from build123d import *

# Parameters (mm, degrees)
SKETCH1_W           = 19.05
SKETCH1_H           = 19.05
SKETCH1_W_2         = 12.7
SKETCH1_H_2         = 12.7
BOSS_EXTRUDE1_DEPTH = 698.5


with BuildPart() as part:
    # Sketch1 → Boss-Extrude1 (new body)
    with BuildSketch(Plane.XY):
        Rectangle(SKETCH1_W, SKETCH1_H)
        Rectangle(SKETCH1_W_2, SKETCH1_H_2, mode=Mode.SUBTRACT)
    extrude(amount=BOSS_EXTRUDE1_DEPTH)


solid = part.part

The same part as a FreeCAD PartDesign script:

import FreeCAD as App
import Part
import Sketcher
Q = App.Units.Quantity


def add_polygon(sketch, points):
    """Adds a closed chain of lines whose ends are joined by coincident constraints."""
    first, n = sketch.GeometryCount, len(points)
    for a, b in zip(points, points[1:] + points[:1]):
        sketch.addGeometry(Part.LineSegment(App.Vector(*a, 0), App.Vector(*b, 0)), False)
    for i in range(n):
        sketch.addConstraint(Sketcher.Constraint("Coincident", first + i, 2, first + (i + 1) % n, 1))

doc = App.newDocument("Part")
body = doc.addObject("PartDesign::Body", "Body")

# Sketch on XY plane
sketch1 = body.newObject("Sketcher::SketchObject", "Sketch")
sketch1.AttachmentSupport = (doc.getObject("XY_Plane"), [""])
sketch1.MapMode = "FlatFace"
add_polygon(sketch1, [(-9.525, 9.525), (-9.525, -9.525), (9.525, -9.525), (9.525, 9.525)])  # lines 0-3
add_polygon(sketch1, [(6.35, -6.35), (-6.35, -6.35), (-6.35, 6.35), (6.35, 6.35)])  # lines 4-7
sketch1.addConstraint([
    Sketcher.Constraint("Vertical", 0),
    Sketcher.Constraint("Horizontal", 1),
    Sketcher.Constraint("Vertical", 2),
    Sketcher.Constraint("Horizontal", 3),
    Sketcher.Constraint("Horizontal", 4),
    Sketcher.Constraint("Vertical", 5),
    Sketcher.Constraint("Horizontal", 6),
    Sketcher.Constraint("Vertical", 7),
    Sketcher.Constraint("Symmetric", 0, 2, 2, 2, -1, 1),
    Sketcher.Constraint("Symmetric", 4, 2, 6, 2, -1, 1),
    Sketcher.Constraint("Equal", 3, 0),
    Sketcher.Constraint("Equal", 6, 5),
    Sketcher.Constraint("DistanceX", 4, 2, 4, 1, Q("0.5 in")),
    Sketcher.Constraint("DistanceX", 1, 1, 1, 2, Q("0.75 in")),
])
pad1 = body.newObject("PartDesign::Pad", "Pad")
pad1.Profile = sketch1
pad1.Length = Q("27.5 in")

doc.recompute()
